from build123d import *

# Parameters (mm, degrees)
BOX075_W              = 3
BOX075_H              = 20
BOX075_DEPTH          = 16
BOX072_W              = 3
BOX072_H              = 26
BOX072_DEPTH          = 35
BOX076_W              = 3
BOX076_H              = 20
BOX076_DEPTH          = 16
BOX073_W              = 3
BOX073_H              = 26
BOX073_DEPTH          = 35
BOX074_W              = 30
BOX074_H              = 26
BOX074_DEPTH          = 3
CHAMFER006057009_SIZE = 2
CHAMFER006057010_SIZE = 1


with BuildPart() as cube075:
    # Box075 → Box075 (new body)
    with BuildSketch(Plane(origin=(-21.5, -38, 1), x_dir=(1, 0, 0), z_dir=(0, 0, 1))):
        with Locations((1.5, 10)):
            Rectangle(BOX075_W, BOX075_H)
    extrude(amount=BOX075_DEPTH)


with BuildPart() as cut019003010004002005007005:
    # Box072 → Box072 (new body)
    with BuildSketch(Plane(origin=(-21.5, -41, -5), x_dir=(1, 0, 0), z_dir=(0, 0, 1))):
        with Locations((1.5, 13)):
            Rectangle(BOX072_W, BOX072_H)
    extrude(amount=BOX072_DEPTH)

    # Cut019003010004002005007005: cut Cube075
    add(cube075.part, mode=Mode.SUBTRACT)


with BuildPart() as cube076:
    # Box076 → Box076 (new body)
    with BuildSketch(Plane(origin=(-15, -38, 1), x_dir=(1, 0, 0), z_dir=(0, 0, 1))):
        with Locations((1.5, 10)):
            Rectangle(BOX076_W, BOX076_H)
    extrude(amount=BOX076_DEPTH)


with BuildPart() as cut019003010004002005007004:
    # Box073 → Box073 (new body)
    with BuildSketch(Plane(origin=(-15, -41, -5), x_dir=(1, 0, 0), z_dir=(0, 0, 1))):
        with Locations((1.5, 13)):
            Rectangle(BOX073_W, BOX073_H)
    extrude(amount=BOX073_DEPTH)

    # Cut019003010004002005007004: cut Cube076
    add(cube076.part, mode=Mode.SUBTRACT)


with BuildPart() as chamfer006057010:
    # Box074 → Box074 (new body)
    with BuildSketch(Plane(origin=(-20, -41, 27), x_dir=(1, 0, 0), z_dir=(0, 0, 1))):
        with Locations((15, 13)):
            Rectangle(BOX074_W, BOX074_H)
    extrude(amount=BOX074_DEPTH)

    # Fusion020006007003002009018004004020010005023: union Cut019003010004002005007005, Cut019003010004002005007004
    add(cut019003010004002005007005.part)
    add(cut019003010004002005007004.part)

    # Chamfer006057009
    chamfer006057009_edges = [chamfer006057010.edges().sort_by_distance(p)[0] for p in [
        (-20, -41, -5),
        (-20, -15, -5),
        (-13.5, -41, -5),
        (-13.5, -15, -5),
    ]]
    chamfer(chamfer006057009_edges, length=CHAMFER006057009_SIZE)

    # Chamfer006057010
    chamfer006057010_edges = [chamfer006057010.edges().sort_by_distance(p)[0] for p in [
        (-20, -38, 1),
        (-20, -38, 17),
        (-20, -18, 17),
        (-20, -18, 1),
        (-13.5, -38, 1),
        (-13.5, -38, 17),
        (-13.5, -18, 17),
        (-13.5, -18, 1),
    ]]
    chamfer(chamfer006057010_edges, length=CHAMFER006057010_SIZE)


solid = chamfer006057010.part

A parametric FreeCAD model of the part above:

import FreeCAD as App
import Part
import Sketcher
from FreeCAD import Vector
Q = App.Units.Quantity


def edges_at(feature, points):
    """Names of the edges that pass closest to the given points."""
    edges = feature.Shape.Edges
    near = lambda p: min(range(len(edges)), key=lambda i: edges[i].distToShape(Part.Vertex(*p))[0])
    return sorted({f"Edge{near(p) + 1}" for p in points})

doc = App.newDocument("Part")
body = doc.addObject("PartDesign::Body", "Body")

# Sketch on XY plane
sketch1 = doc.addObject("Sketcher::SketchObject", "Sketch")
body.addObject(sketch1)
sketch1.AttachmentSupport = (doc.XY_Plane, [""])
sketch1.MapMode = "FlatFace"
sketch1.AttachmentOffset = App.Placement(Vector(0, 0, 1), App.Rotation())
sketch1.addGeometry(Part.LineSegment(Vector(-21.5, -18, 0), Vector(-21.5, -38, 0)), False)
sketch1.addGeometry(Part.LineSegment(Vector(-21.5, -38, 0), Vector(-18.5, -38, 0)), False)
sketch1.addGeometry(Part.LineSegment(Vector(-18.5, -38, 0), Vector(-18.5, -18, 0)), False)
sketch1.addGeometry(Part.LineSegment(Vector(-18.5, -18, 0), Vector(-21.5, -18, 0)), False)
sketch1.addConstraint(Sketcher.Constraint("Coincident", 0, 2, 1, 1))
sketch1.addConstraint(Sketcher.Constraint("Coincident", 1, 2, 2, 1))
sketch1.addConstraint(Sketcher.Constraint("Coincident", 2, 2, 3, 1))
sketch1.addConstraint(Sketcher.Constraint("Coincident", 3, 2, 0, 1))
sketch1.addConstraint(Sketcher.Constraint("Vertical", 0))
sketch1.addConstraint(Sketcher.Constraint("Horizontal", 1))
sketch1.addConstraint(Sketcher.Constraint("Vertical", 2))
sketch1.addConstraint(Sketcher.Constraint("Horizontal", 3))
sketch1.addConstraint(Sketcher.Constraint("DistanceX", 1, 1, 1, 2, Q("3 mm")))
sketch1.addConstraint(Sketcher.Constraint("DistanceY", 0, 2, 0, 1, Q("20 mm")))
sketch1.addConstraint(Sketcher.Constraint("DistanceY", 0, 2, -1, 1, Q("38 mm")))
sketch1.addConstraint(Sketcher.Constraint("DistanceX", 0, 2, -1, 1, Q("21.5 mm")))
pad1 = doc.addObject("PartDesign::Pad", "Pad")
body.addObject(pad1)
pad1.Profile = sketch1
pad1.Length = 16
body2 = doc.addObject("PartDesign::Body", "Body001")

# Sketch on XY plane
sketch2 = doc.addObject("Sketcher::SketchObject", "Sketch001")
body2.addObject(sketch2)
sketch2.AttachmentSupport = (doc.getObject("XY_Plane001"), [""])
sketch2.MapMode = "FlatFace"
sketch2.AttachmentOffset = App.Placement(Vector(0, 0, -5), App.Rotation())
sketch2.addGeometry(Part.LineSegment(Vector(-21.5, -15, 0), Vector(-21.5, -41, 0)), False)
sketch2.addGeometry(Part.LineSegment(Vector(-21.5, -41, 0), Vector(-18.5, -41, 0)), False)
sketch2.addGeometry(Part.LineSegment(Vector(-18.5, -41, 0), Vector(-18.5, -15, 0)), False)
sketch2.addGeometry(Part.LineSegment(Vector(-18.5, -15, 0), Vector(-21.5, -15, 0)), False)
sketch2.addConstraint(Sketcher.Constraint("Coincident", 0, 2, 1, 1))
sketch2.addConstraint(Sketcher.Constraint("Coincident", 1, 2, 2, 1))
sketch2.addConstraint(Sketcher.Constraint("Coincident", 2, 2, 3, 1))
sketch2.addConstraint(Sketcher.Constraint("Coincident", 3, 2, 0, 1))
sketch2.addConstraint(Sketcher.Constraint("Vertical", 0))
sketch2.addConstraint(Sketcher.Constraint("Horizontal", 1))
sketch2.addConstraint(Sketcher.Constraint("Vertical", 2))
sketch2.addConstraint(Sketcher.Constraint("Horizontal", 3))
sketch2.addConstraint(Sketcher.Constraint("DistanceX", 1, 1, 1, 2, Q("3 mm")))
sketch2.addConstraint(Sketcher.Constraint("DistanceY", 0, 2, 0, 1, Q("26 mm")))
sketch2.addConstraint(Sketcher.Constraint("DistanceY", 0, 2, -1, 1, Q("41 mm")))
sketch2.addConstraint(Sketcher.Constraint("DistanceX", 0, 2, -1, 1, Q("21.5 mm")))
pad2 = doc.addObject("PartDesign::Pad", "Pad001")
body2.addObject(pad2)
pad2.Profile = sketch2
pad2.Length = 35
doc.recompute()

boolean = doc.addObject("PartDesign::Boolean", "Boolean")
body2.addObject(boolean)
boolean.Type = "Cut"
boolean.addObjects([body])
body3 = doc.addObject("PartDesign::Body", "Body002")

# Sketch on XY plane
sketch3 = doc.addObject("Sketcher::SketchObject", "Sketch002")
body3.addObject(sketch3)
sketch3.AttachmentSupport = (doc.getObject("XY_Plane002"), [""])
sketch3.MapMode = "FlatFace"
sketch3.AttachmentOffset = App.Placement(Vector(0, 0, 1), App.Rotation())
sketch3.addGeometry(Part.LineSegment(Vector(-15, -18, 0), Vector(-15, -38, 0)), False)
sketch3.addGeometry(Part.LineSegment(Vector(-15, -38, 0), Vector(-12, -38, 0)), False)
sketch3.addGeometry(Part.LineSegment(Vector(-12, -38, 0), Vector(-12, -18, 0)), False)
sketch3.addGeometry(Part.LineSegment(Vector(-12, -18, 0), Vector(-15, -18, 0)), False)
sketch3.addConstraint(Sketcher.Constraint("Coincident", 0, 2, 1, 1))
sketch3.addConstraint(Sketcher.Constraint("Coincident", 1, 2, 2, 1))
sketch3.addConstraint(Sketcher.Constraint("Coincident", 2, 2, 3, 1))
sketch3.addConstraint(Sketcher.Constraint("Coincident", 3, 2, 0, 1))
sketch3.addConstraint(Sketcher.Constraint("Vertical", 0))
sketch3.addConstraint(Sketcher.Constraint("Horizontal", 1))
sketch3.addConstraint(Sketcher.Constraint("Vertical", 2))
sketch3.addConstraint(Sketcher.Constraint("Horizontal", 3))
sketch3.addConstraint(Sketcher.Constraint("DistanceX", 1, 1, 1, 2, Q("3 mm")))
sketch3.addConstraint(Sketcher.Constraint("DistanceY", 0, 2, 0, 1, Q("20 mm")))
sketch3.addConstraint(Sketcher.Constraint("DistanceX", 0, 2, -1, 1, Q("15 mm")))
sketch3.addConstraint(Sketcher.Constraint("DistanceY", 0, 2, -1, 1, Q("38 mm")))
pad3 = doc.addObject("PartDesign::Pad", "Pad002")
body3.addObject(pad3)
pad3.Profile = sketch3
pad3.Length = 16
body4 = doc.addObject("PartDesign::Body", "Body003")

# Sketch on XY plane
sketch4 = doc.addObject("Sketcher::SketchObject", "Sketch003")
body4.addObject(sketch4)
sketch4.AttachmentSupport = (doc.getObject("XY_Plane003"), [""])
sketch4.MapMode = "FlatFace"
sketch4.AttachmentOffset = App.Placement(Vector(0, 0, -5), App.Rotation())
sketch4.addGeometry(Part.LineSegment(Vector(-15, -15, 0), Vector(-15, -41, 0)), False)
sketch4.addGeometry(Part.LineSegment(Vector(-15, -41, 0), Vector(-12, -41, 0)), False)
sketch4.addGeometry(Part.LineSegment(Vector(-12, -41, 0), Vector(-12, -15, 0)), False)
sketch4.addGeometry(Part.LineSegment(Vector(-12, -15, 0), Vector(-15, -15, 0)), False)
sketch4.addConstraint(Sketcher.Constraint("Coincident", 0, 2, 1, 1))
sketch4.addConstraint(Sketcher.Constraint("Coincident", 1, 2, 2, 1))
sketch4.addConstraint(Sketcher.Constraint("Coincident", 2, 2, 3, 1))
sketch4.addConstraint(Sketcher.Constraint("Coincident", 3, 2, 0, 1))
sketch4.addConstraint(Sketcher.Constraint("Vertical", 0))
sketch4.addConstraint(Sketcher.Constraint("Horizontal", 1))
sketch4.addConstraint(Sketcher.Constraint("Vertical", 2))
sketch4.addConstraint(Sketcher.Constraint("Horizontal", 3))
sketch4.addConstraint(Sketcher.Constraint("DistanceX", 1, 1, 1, 2, Q("3 mm")))
sketch4.addConstraint(Sketcher.Constraint("DistanceY", 0, 2, 0, 1, Q("26 mm")))
sketch4.addConstraint(Sketcher.Constraint("DistanceX", 0, 2, -1, 1, Q("15 mm")))
sketch4.addConstraint(Sketcher.Constraint("DistanceY", 0, 2, -1, 1, Q("41 mm")))
pad4 = doc.addObject("PartDesign::Pad", "Pad003")
body4.addObject(pad4)
pad4.Profile = sketch4
pad4.Length = 35
doc.recompute()

boolean2 = doc.addObject("PartDesign::Boolean", "Boolean001")
body4.addObject(boolean2)
boolean2.Type = "Cut"
boolean2.addObjects([body3])
body5 = doc.addObject("PartDesign::Body", "Body004")

# Sketch on XY plane
sketch5 = doc.addObject("Sketcher::SketchObject", "Sketch004")
body5.addObject(sketch5)
sketch5.AttachmentSupport = (doc.getObject("XY_Plane004"), [""])
sketch5.MapMode = "FlatFace"
sketch5.AttachmentOffset = App.Placement(Vector(0, 0, 27), App.Rotation())
sketch5.addGeometry(Part.LineSegment(Vector(-20, -15, 0), Vector(-20, -41, 0)), False)
sketch5.addGeometry(Part.LineSegment(Vector(-20, -41, 0), Vector(10, -41, 0)), False)
sketch5.addGeometry(Part.LineSegment(Vector(10, -41, 0), Vector(10, -15, 0)), False)
sketch5.addGeometry(Part.LineSegment(Vector(10, -15, 0), Vector(-20, -15, 0)), False)
sketch5.addConstraint(Sketcher.Constraint("Coincident", 0, 2, 1, 1))
sketch5.addConstraint(Sketcher.Constraint("Coincident", 1, 2, 2, 1))
sketch5.addConstraint(Sketcher.Constraint("Coincident", 2, 2, 3, 1))
sketch5.addConstraint(Sketcher.Constraint("Coincident", 3, 2, 0, 1))
sketch5.addConstraint(Sketcher.Constraint("Vertical", 0))
sketch5.addConstraint(Sketcher.Constraint("Horizontal", 1))
sketch5.addConstraint(Sketcher.Constraint("Vertical", 2))
sketch5.addConstraint(Sketcher.Constraint("Horizontal", 3))
sketch5.addConstraint(Sketcher.Constraint("DistanceX", 1, 1, 1, 2, Q("30 mm")))
sketch5.addConstraint(Sketcher.Constraint("DistanceY", 0, 2, 0, 1, Q("26 mm")))
sketch5.addConstraint(Sketcher.Constraint("DistanceX", 0, 2, -1, 1, Q("20 mm")))
sketch5.addConstraint(Sketcher.Constraint("DistanceY", 0, 2, -1, 1, Q("41 mm")))
pad5 = doc.addObject("PartDesign::Pad", "Pad004")
body5.addObject(pad5)
pad5.Profile = sketch5
pad5.Length = 3
doc.recompute()

boolean3 = doc.addObject("PartDesign::Boolean", "Boolean002")
body5.addObject(boolean3)
boolean3.Type = "Fuse"
boolean3.addObjects([body2])
doc.recompute()

boolean4 = doc.addObject("PartDesign::Boolean", "Boolean003")
body5.addObject(boolean4)
boolean4.Type = "Fuse"
boolean4.addObjects([body4])
doc.recompute()

chamfer = doc.addObject("PartDesign::Chamfer", "Chamfer")
body5.addObject(chamfer)
chamfer.Base = (boolean4, edges_at(boolean4, [
    (-20, -41, -5),
    (-20, -15, -5),
    (-13.5, -41, -5),
    (-13.5, -15, -5),
]))
chamfer.Size = 2
doc.recompute()

chamfer2 = doc.addObject("PartDesign::Chamfer", "Chamfer001")
body5.addObject(chamfer2)
chamfer2.Base = (chamfer, edges_at(chamfer, [
    (-20, -38, 1),
    (-20, -38, 17),
    (-20, -18, 17),
    (-20, -18, 1),
    (-13.5, -38, 1),
    (-13.5, -38, 17),
    (-13.5, -18, 17),
    (-13.5, -18, 1),
]))
chamfer2.Size = 1

doc.recompute()
